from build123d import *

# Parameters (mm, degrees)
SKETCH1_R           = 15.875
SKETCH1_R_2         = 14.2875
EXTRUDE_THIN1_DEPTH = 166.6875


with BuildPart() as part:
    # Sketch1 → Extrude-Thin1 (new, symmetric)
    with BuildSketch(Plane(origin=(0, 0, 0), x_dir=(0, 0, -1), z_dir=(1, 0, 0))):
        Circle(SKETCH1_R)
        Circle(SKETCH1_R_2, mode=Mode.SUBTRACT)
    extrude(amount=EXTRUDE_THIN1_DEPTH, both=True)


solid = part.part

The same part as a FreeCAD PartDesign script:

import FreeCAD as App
import Part
import Sketcher
Q = App.Units.Quantity

doc = App.newDocument("Part")
params = doc.addObject("Spreadsheet::Sheet", "Params")
for row, (alias, value) in enumerate([
    ("sketch1_diameter", "1.25 in"),
    ("sketch1_diameter2", "1.125 in"),
    ("pad1_length", "13.125 in"),
], start=1):
    params.set(f"A{row}", alias)
    params.set(f"B{row}", "=" + value)
    params.setAlias(f"B{row}", alias)

body = doc.addObject("PartDesign::Body", "Body")

# Sketch on YZ plane
sketch1 = doc.addObject("Sketcher::SketchObject", "Sketch")
body.addObject(sketch1)
sketch1.AttachmentSupport = (doc.YZ_Plane, [""])
sketch1.MapMode = "FlatFace"
sketch1.addGeometry([
    Part.Circle(App.Vector(0, 0, 0), App.Vector(0, 0, 1), 16),
    Part.Circle(App.Vector(0, 0, 0), App.Vector(0, 0, 1), 14),
], False)
sketch1.addConstraint([
    Sketcher.Constraint("Coincident", 0, 3, -1, 1),
    Sketcher.Constraint("Coincident", 1, 3, -1, 1),
    Sketcher.Constraint("Diameter", 0, Q("1.25 in")),
    Sketcher.Constraint("Diameter", 1, Q("1.125 in")),
])
sketch1.setExpression("Constraints[2]", "Params.sketch1_diameter")
sketch1.setExpression("Constraints[3]", "Params.sketch1_diameter2")
pad1 = doc.addObject("PartDesign::Pad", "Pad")
body.addObject(pad1)
pad1.Profile = sketch1
pad1.setExpression("Length", "Params.pad1_length")
pad1.Midplane = True

doc.recompute()
